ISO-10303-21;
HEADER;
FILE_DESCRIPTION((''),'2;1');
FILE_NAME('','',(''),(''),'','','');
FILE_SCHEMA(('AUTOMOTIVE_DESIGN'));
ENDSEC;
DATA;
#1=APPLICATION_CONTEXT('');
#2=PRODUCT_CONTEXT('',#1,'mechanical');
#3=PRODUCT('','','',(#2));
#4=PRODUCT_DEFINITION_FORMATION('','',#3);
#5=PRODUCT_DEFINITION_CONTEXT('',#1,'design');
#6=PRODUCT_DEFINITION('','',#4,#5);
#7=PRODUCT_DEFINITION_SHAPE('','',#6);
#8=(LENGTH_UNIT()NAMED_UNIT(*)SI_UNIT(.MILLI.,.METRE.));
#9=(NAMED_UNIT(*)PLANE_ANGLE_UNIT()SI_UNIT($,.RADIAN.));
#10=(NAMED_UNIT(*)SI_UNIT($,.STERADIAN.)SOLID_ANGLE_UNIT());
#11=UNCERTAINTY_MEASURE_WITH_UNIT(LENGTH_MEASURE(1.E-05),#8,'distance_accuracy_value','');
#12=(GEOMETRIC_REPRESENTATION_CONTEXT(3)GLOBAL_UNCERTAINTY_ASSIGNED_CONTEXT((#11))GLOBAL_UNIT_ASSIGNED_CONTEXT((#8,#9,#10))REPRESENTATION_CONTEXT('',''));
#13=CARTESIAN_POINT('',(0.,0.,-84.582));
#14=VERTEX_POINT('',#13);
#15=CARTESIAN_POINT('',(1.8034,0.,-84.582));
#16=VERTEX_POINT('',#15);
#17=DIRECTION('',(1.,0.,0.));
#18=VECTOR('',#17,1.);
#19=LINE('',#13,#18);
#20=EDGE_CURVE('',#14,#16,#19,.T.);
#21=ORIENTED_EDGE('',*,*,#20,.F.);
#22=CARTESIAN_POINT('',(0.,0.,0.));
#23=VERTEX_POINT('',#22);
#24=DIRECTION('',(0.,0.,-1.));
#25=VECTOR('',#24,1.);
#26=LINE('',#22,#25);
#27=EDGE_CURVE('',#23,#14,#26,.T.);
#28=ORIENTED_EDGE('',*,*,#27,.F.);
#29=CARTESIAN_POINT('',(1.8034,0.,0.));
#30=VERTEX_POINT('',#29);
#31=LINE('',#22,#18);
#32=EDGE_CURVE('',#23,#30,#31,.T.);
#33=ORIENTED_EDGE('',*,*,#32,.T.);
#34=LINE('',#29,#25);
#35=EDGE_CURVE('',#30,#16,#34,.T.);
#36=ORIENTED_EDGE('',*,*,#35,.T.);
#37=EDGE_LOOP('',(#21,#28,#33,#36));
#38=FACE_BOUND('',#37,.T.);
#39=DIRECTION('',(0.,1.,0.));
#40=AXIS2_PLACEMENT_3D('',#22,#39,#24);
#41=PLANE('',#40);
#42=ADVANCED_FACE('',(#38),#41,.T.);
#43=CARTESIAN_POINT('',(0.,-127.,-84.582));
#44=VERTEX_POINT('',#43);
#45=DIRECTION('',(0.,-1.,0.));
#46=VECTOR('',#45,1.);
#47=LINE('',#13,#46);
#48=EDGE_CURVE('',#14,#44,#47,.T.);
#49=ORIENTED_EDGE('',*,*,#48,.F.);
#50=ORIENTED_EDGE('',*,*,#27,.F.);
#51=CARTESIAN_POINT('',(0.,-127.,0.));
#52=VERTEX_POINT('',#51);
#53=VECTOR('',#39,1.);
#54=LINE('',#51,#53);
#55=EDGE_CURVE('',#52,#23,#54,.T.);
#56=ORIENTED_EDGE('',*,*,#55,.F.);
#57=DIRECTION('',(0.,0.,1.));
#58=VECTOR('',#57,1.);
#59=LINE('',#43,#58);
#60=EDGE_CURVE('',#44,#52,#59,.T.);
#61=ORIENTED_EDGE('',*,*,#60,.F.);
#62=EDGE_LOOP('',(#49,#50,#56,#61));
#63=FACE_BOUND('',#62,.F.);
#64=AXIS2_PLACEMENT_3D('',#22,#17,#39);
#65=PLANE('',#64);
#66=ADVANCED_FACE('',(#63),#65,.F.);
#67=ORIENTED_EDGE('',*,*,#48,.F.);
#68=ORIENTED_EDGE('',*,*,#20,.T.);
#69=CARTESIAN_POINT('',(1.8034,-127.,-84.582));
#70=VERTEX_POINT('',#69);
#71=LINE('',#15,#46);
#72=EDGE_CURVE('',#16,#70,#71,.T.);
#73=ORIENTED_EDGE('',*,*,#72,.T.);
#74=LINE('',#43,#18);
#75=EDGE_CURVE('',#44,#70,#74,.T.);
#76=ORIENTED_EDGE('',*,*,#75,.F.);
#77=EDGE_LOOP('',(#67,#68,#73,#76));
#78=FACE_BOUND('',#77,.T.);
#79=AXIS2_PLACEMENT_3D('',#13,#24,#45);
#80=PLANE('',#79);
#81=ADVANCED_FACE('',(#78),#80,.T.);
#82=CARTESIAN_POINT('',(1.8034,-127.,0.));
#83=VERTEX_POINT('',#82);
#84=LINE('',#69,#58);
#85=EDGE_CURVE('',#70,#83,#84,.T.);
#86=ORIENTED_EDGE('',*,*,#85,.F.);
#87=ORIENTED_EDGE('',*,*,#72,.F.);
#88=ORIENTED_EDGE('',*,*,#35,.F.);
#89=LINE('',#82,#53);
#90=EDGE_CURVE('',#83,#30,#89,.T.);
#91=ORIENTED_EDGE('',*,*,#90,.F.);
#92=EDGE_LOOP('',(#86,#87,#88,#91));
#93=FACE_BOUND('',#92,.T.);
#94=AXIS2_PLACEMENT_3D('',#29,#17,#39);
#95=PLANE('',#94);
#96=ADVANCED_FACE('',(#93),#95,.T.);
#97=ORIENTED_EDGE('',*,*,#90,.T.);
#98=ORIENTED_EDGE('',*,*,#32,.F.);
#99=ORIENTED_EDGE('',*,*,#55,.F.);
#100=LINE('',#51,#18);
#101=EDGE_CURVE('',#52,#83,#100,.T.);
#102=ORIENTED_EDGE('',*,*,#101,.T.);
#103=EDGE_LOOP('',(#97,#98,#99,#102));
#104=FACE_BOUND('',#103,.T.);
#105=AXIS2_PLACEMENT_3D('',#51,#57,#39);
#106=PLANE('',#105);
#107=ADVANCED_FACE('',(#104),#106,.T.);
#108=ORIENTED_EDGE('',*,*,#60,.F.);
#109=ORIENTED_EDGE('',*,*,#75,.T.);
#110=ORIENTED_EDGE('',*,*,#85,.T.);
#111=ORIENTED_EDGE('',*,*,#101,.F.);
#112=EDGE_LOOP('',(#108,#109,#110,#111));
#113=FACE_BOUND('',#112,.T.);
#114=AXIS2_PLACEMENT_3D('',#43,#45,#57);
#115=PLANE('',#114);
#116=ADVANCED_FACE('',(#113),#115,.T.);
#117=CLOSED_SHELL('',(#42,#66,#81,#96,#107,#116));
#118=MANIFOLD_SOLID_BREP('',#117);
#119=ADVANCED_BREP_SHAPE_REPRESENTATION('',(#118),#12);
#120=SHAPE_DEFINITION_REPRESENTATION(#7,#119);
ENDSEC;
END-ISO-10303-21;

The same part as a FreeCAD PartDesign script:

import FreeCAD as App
import Part
import Sketcher

V = App.Vector
Q = App.Units.Quantity

doc = App.newDocument("Part")
params = doc.addObject("Spreadsheet::Sheet", "Params")
for row, (alias, value) in enumerate([
    ("sketch1_width", "5 in"),
    ("sketch1_height", "3.33 in"),
    ("pad1_length", "0.071 in"),
], start=1):
    params.set(f"A{row}", alias)
    params.set(f"B{row}", "=" + value)
    params.setAlias(f"B{row}", alias)

body = doc.addObject("PartDesign::Body", "Body")

# Sketch on YZ plane
sketch1 = body.newObject("Sketcher::SketchObject", "Sketch")
sketch1.AttachmentSupport = (doc.getObject("YZ_Plane"), [""])
sketch1.MapMode = "FlatFace"
sketch1.addGeometry(Part.LineSegment(V(0, -85, 0), V(0, 0, 0)), False)
sketch1.addGeometry(Part.LineSegment(V(0, 0, 0), V(-127, 0, 0)), False)
sketch1.addGeometry(Part.LineSegment(V(-127, 0, 0), V(-127, -85, 0)), False)
sketch1.addGeometry(Part.LineSegment(V(-127, -85, 0), V(0, -85, 0)), False)
sketch1.addConstraint(Sketcher.Constraint("Coincident", 0, 2, 1, 1))
sketch1.addConstraint(Sketcher.Constraint("Coincident", 1, 2, 2, 1))
sketch1.addConstraint(Sketcher.Constraint("Coincident", 2, 2, 3, 1))
sketch1.addConstraint(Sketcher.Constraint("Coincident", 3, 2, 0, 1))
sketch1.addConstraint(Sketcher.Constraint("Vertical", 0))
sketch1.addConstraint(Sketcher.Constraint("Horizontal", 1))
sketch1.addConstraint(Sketcher.Constraint("Vertical", 2))
sketch1.addConstraint(Sketcher.Constraint("Horizontal", 3))
sketch1.addConstraint(Sketcher.Constraint("Coincident", 0, 2, -1, 1))
sketch1.addConstraint(Sketcher.Constraint("DistanceX", 1, 2, 1, 1, Q("5 in")))
sketch1.addConstraint(Sketcher.Constraint("DistanceY", 0, 1, 0, 2, Q("3.33 in")))
sketch1.setExpression("Constraints[9]", "Params.sketch1_width")
sketch1.setExpression("Constraints[10]", "Params.sketch1_height")
pad1 = body.newObject("PartDesign::Pad", "Pad")
pad1.Profile = sketch1
pad1.setExpression("Length", "Params.pad1_length")

doc.recompute()
